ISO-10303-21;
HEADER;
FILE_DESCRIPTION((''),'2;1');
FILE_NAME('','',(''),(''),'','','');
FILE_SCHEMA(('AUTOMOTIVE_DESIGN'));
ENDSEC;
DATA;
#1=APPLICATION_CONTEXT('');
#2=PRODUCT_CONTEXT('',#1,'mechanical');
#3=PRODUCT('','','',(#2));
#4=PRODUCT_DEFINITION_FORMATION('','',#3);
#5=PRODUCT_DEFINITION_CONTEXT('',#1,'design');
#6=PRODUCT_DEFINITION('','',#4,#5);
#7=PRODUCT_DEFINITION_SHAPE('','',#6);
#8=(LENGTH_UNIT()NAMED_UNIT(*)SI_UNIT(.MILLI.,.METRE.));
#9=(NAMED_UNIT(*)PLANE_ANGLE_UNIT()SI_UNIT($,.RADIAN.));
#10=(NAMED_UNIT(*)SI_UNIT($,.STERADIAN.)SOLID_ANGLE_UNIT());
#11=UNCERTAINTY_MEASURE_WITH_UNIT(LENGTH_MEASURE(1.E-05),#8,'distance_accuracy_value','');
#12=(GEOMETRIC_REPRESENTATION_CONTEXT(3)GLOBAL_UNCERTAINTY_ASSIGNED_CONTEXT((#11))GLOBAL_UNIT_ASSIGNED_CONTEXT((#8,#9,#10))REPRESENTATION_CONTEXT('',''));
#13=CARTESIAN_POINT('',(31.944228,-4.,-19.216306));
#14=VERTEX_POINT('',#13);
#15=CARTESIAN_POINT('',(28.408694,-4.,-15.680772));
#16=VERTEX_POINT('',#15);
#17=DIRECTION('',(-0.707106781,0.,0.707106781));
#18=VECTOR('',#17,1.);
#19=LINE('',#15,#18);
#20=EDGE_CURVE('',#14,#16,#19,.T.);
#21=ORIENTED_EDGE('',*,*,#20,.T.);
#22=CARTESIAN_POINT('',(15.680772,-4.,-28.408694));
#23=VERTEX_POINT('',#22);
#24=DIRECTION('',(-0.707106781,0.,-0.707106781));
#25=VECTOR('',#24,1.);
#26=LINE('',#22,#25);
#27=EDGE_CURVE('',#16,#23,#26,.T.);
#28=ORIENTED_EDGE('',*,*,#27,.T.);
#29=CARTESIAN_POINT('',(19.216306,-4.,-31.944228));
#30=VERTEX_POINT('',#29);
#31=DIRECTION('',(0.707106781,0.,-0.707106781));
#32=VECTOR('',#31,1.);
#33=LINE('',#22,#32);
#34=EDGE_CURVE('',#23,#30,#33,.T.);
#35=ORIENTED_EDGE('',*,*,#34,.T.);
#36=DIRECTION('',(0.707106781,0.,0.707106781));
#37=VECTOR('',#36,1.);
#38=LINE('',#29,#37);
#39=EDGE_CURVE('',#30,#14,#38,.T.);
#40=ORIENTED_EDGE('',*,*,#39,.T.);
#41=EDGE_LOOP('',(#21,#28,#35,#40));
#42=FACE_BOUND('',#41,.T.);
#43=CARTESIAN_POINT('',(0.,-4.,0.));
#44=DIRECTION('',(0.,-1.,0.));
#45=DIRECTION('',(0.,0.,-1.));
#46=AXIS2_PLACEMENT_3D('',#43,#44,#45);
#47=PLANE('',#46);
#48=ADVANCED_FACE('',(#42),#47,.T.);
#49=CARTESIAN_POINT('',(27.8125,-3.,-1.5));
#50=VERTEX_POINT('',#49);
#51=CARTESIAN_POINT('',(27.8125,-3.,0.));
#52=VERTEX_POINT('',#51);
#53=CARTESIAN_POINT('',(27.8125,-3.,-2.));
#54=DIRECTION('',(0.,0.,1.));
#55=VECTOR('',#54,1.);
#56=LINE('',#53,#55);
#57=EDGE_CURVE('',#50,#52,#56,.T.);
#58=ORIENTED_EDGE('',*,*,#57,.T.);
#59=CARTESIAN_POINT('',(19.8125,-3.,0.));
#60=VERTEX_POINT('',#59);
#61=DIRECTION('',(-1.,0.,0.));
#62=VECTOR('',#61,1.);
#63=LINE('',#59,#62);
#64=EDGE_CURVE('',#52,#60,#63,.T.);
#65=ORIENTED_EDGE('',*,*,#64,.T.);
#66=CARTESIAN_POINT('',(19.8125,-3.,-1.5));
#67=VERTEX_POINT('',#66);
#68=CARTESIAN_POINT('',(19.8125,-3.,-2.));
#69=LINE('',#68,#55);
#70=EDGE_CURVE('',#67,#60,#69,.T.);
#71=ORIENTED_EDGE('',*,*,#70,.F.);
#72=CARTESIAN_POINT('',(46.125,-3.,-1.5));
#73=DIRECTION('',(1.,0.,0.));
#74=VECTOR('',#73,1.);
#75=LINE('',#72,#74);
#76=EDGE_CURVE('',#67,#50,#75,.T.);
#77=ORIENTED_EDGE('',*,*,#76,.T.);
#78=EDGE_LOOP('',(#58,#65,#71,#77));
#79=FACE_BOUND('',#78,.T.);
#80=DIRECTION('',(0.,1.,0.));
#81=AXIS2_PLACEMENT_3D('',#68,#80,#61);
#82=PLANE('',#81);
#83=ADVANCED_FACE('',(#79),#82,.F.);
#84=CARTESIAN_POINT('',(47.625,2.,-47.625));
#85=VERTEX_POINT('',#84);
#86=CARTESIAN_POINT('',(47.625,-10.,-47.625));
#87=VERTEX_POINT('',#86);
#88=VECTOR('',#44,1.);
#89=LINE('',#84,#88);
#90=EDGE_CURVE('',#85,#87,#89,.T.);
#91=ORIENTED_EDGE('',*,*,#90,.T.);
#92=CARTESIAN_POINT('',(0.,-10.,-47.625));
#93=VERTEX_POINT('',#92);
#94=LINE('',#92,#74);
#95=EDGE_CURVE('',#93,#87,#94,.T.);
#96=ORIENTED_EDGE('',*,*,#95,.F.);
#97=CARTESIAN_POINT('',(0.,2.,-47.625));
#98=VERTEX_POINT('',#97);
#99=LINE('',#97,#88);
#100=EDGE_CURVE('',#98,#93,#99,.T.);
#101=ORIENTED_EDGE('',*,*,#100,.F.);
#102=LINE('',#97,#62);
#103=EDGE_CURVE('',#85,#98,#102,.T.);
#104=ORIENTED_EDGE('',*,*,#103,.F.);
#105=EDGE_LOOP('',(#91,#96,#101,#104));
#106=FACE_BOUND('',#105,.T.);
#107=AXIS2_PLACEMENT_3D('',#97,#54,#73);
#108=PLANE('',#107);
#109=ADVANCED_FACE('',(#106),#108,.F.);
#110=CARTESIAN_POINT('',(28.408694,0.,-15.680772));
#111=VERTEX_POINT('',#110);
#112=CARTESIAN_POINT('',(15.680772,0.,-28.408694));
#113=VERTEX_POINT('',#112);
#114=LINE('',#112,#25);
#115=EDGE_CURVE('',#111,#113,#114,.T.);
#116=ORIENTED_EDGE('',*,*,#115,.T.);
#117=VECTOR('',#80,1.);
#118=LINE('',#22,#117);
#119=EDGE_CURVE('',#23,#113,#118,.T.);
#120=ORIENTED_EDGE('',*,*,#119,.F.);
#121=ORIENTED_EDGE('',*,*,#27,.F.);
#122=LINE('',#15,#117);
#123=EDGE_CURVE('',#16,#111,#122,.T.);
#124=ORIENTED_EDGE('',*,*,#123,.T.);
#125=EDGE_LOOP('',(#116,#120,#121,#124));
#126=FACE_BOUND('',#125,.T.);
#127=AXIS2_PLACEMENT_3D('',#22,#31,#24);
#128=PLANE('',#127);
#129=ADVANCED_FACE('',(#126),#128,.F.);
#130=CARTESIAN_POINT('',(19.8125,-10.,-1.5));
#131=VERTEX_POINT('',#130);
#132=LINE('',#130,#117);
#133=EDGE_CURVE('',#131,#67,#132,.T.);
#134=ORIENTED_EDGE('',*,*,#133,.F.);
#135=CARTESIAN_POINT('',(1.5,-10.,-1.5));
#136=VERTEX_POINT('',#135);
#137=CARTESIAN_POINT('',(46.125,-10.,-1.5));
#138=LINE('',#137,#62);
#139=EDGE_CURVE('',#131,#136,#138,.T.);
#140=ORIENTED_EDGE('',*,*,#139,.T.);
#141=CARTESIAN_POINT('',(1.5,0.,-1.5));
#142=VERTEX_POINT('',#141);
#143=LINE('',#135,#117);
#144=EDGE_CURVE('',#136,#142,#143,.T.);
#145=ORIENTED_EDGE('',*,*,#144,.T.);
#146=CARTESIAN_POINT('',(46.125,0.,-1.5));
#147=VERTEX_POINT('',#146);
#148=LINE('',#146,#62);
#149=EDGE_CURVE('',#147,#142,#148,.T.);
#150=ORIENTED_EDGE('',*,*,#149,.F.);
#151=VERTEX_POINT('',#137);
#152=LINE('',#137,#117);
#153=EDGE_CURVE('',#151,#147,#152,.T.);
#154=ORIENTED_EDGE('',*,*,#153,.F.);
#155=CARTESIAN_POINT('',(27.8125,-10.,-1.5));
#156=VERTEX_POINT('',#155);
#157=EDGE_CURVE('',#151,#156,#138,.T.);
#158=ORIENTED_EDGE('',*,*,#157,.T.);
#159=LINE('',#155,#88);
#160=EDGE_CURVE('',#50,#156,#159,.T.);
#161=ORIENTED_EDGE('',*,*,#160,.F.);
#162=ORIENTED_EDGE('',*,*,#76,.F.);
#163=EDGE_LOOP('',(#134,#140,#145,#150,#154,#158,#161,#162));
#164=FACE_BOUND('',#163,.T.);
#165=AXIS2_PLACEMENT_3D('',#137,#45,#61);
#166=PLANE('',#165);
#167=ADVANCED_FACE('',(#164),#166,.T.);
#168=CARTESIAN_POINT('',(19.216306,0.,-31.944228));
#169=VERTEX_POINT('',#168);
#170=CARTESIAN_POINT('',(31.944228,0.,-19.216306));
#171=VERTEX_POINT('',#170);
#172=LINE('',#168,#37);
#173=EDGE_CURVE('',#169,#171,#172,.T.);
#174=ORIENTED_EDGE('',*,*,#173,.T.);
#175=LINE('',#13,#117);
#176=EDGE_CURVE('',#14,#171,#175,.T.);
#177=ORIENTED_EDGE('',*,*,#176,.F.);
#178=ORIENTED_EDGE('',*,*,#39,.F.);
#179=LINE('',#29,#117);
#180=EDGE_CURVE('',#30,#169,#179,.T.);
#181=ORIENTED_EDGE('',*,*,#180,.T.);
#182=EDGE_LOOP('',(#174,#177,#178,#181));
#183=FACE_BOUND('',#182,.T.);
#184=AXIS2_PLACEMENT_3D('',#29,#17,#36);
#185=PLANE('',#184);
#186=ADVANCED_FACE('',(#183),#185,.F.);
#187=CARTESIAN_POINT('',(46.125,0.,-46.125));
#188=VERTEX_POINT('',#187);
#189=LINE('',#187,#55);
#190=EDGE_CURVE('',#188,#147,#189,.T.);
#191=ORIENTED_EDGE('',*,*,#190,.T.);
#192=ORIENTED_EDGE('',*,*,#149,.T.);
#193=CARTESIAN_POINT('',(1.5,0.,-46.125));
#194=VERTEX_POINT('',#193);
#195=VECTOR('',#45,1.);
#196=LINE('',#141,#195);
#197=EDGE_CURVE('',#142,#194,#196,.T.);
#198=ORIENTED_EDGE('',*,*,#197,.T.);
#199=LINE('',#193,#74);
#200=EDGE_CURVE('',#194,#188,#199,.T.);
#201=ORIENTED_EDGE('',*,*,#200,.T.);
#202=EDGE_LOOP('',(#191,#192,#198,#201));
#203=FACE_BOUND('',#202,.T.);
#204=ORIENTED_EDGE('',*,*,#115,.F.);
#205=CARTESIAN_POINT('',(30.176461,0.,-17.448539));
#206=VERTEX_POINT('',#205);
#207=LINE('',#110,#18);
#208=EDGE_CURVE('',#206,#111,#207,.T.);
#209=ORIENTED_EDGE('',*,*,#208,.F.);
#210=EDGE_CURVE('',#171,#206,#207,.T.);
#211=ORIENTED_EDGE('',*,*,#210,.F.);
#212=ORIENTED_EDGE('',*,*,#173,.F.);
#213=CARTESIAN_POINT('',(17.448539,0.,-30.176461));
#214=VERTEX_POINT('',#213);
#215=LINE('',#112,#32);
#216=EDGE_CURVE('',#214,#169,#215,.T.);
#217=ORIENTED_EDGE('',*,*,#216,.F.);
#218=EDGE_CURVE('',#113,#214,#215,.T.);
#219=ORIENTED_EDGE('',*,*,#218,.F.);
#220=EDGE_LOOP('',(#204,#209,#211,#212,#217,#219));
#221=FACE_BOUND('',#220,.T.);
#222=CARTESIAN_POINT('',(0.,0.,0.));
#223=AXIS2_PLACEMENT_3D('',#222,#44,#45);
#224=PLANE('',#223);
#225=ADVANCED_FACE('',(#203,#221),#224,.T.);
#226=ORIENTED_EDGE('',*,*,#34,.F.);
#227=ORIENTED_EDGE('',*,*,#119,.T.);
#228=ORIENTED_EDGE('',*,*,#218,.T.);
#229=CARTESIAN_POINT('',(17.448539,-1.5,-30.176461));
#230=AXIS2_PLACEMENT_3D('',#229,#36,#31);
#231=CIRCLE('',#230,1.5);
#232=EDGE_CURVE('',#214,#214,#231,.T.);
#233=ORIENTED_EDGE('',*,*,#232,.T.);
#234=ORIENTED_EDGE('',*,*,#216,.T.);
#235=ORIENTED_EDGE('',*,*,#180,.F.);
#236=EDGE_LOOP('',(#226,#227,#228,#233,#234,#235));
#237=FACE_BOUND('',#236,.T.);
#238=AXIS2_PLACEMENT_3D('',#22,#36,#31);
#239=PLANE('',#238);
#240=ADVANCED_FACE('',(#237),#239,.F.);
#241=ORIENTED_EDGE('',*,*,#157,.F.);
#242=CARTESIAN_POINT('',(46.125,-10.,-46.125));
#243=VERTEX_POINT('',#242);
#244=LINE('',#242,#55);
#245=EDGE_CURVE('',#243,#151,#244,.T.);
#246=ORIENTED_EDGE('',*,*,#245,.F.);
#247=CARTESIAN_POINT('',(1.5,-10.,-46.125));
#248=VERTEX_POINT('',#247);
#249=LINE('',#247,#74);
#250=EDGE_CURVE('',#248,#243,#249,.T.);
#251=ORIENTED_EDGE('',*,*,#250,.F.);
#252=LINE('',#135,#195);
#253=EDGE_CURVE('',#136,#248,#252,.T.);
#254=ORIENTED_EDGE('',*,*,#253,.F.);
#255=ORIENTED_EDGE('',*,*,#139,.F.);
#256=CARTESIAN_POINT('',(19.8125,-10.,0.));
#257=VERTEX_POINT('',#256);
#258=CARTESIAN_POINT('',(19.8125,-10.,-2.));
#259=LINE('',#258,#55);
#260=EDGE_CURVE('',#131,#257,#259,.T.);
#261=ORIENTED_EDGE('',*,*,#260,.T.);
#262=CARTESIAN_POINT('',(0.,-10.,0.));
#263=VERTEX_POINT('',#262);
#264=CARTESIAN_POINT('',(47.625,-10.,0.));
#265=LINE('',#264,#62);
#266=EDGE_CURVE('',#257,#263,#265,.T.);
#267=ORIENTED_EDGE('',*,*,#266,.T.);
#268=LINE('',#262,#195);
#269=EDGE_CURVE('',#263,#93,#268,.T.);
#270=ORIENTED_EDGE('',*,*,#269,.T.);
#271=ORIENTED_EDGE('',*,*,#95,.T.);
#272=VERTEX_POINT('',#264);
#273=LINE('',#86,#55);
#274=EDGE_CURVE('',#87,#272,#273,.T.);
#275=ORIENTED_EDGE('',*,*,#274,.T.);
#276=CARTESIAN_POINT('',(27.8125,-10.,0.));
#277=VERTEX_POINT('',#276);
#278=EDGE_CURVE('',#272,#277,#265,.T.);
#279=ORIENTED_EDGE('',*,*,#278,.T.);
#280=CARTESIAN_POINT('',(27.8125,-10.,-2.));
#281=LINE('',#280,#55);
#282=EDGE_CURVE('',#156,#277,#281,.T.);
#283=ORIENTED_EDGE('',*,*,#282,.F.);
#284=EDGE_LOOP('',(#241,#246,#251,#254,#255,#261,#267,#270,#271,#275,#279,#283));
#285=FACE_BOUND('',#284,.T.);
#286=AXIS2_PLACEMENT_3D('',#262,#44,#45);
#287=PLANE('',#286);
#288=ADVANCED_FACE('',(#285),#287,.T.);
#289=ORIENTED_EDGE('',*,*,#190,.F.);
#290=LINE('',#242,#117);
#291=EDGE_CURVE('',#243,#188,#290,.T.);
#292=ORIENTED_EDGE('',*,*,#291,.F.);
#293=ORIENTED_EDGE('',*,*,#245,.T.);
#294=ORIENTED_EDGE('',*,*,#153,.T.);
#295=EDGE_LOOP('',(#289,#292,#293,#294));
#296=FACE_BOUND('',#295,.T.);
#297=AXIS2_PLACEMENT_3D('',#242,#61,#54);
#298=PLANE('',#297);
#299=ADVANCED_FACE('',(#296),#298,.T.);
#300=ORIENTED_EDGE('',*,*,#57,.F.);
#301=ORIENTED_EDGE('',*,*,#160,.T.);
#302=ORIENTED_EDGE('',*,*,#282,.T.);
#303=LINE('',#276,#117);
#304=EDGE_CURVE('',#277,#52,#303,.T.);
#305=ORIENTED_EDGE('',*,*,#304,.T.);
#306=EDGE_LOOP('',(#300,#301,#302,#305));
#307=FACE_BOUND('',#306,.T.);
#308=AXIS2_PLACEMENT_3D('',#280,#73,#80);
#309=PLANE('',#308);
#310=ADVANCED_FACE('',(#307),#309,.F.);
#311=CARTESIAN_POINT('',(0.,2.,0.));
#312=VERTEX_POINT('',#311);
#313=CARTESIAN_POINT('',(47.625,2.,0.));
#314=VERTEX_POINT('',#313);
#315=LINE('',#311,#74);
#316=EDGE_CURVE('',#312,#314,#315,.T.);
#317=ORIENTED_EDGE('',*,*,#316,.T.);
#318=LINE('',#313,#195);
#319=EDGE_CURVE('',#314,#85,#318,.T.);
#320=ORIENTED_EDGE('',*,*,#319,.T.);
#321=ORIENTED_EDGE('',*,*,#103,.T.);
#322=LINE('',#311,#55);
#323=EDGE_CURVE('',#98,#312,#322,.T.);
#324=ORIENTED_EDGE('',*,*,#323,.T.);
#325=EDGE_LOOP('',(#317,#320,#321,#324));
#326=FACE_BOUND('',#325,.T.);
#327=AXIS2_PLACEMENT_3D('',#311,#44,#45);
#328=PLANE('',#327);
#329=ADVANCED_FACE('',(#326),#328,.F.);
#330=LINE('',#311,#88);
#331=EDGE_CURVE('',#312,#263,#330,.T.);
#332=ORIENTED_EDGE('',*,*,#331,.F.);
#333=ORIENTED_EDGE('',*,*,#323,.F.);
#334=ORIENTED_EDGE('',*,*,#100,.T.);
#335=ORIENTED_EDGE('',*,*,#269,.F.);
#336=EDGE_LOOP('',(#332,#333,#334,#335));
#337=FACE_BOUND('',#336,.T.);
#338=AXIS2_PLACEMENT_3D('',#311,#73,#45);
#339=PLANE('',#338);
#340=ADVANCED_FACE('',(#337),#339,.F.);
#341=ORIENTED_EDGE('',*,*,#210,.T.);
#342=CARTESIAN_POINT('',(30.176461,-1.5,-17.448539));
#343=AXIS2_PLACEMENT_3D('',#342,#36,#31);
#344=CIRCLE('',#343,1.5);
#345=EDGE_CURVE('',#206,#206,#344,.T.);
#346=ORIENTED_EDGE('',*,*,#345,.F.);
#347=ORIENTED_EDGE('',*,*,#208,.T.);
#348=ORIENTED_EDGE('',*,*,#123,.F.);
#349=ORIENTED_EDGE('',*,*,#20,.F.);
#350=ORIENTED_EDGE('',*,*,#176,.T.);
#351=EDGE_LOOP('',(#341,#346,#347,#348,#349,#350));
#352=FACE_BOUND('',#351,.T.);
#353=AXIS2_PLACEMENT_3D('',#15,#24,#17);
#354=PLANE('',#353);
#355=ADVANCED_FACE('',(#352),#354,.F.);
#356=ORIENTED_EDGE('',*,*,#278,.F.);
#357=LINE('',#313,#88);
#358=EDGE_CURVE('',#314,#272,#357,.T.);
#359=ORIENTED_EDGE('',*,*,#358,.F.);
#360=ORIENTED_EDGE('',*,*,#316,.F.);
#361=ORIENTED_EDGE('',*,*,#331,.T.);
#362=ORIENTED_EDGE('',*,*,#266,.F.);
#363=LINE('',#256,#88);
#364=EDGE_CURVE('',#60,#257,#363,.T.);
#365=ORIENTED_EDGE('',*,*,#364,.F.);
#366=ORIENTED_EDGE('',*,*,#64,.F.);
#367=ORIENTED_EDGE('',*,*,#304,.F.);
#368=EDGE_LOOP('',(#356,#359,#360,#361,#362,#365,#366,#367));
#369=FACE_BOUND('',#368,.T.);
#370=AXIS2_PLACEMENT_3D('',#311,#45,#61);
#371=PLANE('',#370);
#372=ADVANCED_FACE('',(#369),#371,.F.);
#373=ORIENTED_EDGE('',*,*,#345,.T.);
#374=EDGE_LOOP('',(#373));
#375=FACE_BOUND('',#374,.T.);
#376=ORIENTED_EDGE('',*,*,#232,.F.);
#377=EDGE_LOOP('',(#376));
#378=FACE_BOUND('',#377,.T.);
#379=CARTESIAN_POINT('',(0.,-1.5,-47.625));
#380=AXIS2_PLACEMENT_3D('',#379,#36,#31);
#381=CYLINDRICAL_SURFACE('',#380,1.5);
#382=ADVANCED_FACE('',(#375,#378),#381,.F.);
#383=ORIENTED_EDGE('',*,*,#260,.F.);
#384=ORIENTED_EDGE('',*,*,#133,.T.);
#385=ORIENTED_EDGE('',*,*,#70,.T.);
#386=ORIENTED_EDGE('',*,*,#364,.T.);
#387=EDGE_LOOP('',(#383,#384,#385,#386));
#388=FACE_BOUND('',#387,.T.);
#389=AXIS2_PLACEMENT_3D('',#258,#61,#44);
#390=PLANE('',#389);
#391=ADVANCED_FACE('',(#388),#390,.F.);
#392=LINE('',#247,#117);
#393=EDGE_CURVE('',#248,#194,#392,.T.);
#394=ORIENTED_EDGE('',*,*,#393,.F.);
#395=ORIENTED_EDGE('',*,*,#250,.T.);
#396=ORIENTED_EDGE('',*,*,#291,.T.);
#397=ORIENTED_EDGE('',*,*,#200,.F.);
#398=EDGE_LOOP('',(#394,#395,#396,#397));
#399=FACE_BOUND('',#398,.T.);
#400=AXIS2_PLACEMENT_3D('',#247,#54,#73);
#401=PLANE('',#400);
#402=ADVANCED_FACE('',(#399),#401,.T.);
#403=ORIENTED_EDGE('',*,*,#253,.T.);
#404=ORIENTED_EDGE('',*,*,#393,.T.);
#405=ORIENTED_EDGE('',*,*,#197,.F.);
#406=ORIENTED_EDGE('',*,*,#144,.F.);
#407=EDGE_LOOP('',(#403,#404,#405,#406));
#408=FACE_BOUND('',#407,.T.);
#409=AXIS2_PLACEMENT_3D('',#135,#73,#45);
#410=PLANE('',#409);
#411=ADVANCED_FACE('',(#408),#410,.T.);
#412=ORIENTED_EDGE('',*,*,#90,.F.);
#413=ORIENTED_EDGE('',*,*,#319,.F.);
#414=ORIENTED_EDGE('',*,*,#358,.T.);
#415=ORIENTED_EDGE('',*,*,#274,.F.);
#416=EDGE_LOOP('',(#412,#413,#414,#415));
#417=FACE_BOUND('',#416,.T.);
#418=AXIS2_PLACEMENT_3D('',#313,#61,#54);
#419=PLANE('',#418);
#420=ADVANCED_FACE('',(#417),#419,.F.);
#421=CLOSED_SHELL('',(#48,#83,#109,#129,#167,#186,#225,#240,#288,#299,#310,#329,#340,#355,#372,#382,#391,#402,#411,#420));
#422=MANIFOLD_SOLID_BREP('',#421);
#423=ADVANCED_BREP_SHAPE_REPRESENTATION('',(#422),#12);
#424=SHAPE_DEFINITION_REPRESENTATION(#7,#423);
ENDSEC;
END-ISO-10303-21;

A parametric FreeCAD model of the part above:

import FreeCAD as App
import Part
import Sketcher

V = App.Vector
Q = App.Units.Quantity


def add_polygon(sketch, points):
    """Adds a closed chain of lines whose ends are joined by coincident constraints."""
    first, n = sketch.GeometryCount, len(points)
    for a, b in zip(points, points[1:] + points[:1]):
        sketch.addGeometry(Part.LineSegment(App.Vector(*a, 0), App.Vector(*b, 0)), False)
    for i in range(n):
        sketch.addConstraint(Sketcher.Constraint("Coincident", first + i, 2, first + (i + 1) % n, 1))

doc = App.newDocument("Part")
body = doc.addObject("PartDesign::Body", "Body")

sketch1 = body.newObject("Sketcher::SketchObject", "Sketch")
sketch1.AttachmentSupport = (doc.getObject("XZ_Plane"), [""])
sketch1.MapMode = "FlatFace"
add_polygon(sketch1, [(0, -48), (0, 0), (48, 0), (48, -48)])
sketch1.addConstraint([
    Sketcher.Constraint("Vertical", 0),
    Sketcher.Constraint("Horizontal", 1),
    Sketcher.Constraint("Vertical", 2),
    Sketcher.Constraint("Horizontal", 3),
    Sketcher.Constraint("Coincident", 0, 2, -1, 1),
    Sketcher.Constraint("Equal", 3, 0),
    Sketcher.Constraint("DistanceX", 1, 1, 1, 2, 47.625),
])
pad1 = body.newObject("PartDesign::Pad", "Pad")
pad1.Profile = sketch1
pad1.Length = 2
pad1.Reversed = True

sketch2 = body.newObject("Sketcher::SketchObject", "Sketch001")
sketch2.AttachmentSupport = (doc.getObject("XZ_Plane"), [""])
sketch2.MapMode = "FlatFace"
add_polygon(sketch2, [(28, -16), (16, -28), (19, -32), (32, -19)])
sketch2.addConstraint([
    Sketcher.Constraint("Perpendicular", 0, 1),
    Sketcher.Constraint("Perpendicular", 1, 2),
    Sketcher.Constraint("Perpendicular", 2, 3),
    Sketcher.Constraint("Angle", 0, Q("-135 deg")),
    Sketcher.Constraint("Distance", 0, 18.0),
    Sketcher.Constraint("Distance", 1, 5.0),
    Sketcher.Constraint("DistanceX", -1, 1, 0, 2, 15.680772),
    Sketcher.Constraint("DistanceY", 0, 2, -1, 1, 28.408694),
])
pad2 = body.newObject("PartDesign::Pad", "Pad001")
pad2.Profile = sketch2
pad2.Length = 4

sketch3 = body.newObject("Sketcher::SketchObject", "Sketch002")
sketch3.Placement = App.Placement(V(6.363961, 0, 6.363961), App.Rotation(V(0.707106781, 0, -0.707106781), V(0, 0.999999999, 0), V(0.707106781, 0, 0.707106781), "ZXY"))
sketch3.addGeometry(Part.Circle(V(33.7, -1.5, 0), V(0, 0, 1), 1.5), False)
sketch3.addConstraint([
    Sketcher.Constraint("Diameter", 0, 3.0),
    Sketcher.Constraint("DistanceY", 0, 3, -1, 1, 1.5),
    Sketcher.Constraint("DistanceX", -1, 1, 0, 3, 33.67596),
])
pocket1 = body.newObject("PartDesign::Pocket", "Pocket")
pocket1.Profile = sketch3
pocket1.Type = "ThroughAll"

sketch4 = body.newObject("Sketcher::SketchObject", "Sketch003")
sketch4.AttachmentSupport = (doc.getObject("XZ_Plane"), [""])
sketch4.MapMode = "FlatFace"
add_polygon(sketch4, [(0, 0), (0, -48), (48, -48), (48, 0)])
add_polygon(sketch4, [(46, -46), (2, -46), (2, -2), (46, -2)])
sketch4.addConstraint([
    Sketcher.Constraint("Vertical", 0),
    Sketcher.Constraint("Horizontal", 1),
    Sketcher.Constraint("Vertical", 2),
    Sketcher.Constraint("Horizontal", 3),
    Sketcher.Constraint("Horizontal", 4),
    Sketcher.Constraint("Vertical", 5),
    Sketcher.Constraint("Horizontal", 6),
    Sketcher.Constraint("Vertical", 7),
    Sketcher.Constraint("Coincident", 3, 2, -1, 1),
    Sketcher.Constraint("Equal", 3, 0),
    Sketcher.Constraint("Equal", 6, 5),
    Sketcher.Constraint("DistanceX", -1, 1, 4, 2, 1.5),
    Sketcher.Constraint("DistanceY", 5, 2, -1, 1, 1.5),
    Sketcher.Constraint("DistanceY", 0, 2, 4, 2, 1.5),
    Sketcher.Constraint("DistanceX", 1, 1, 1, 2, 47.625),
])
pad3 = body.newObject("PartDesign::Pad", "Pad002")
pad3.Profile = sketch4
pad3.Length = 10

sketch5 = body.newObject("Sketcher::SketchObject", "Sketch004")
sketch5.AttachmentSupport = (doc.getObject("XY_Plane"), [""])
sketch5.MapMode = "FlatFace"
add_polygon(sketch5, [(20, -3), (20, -10), (28, -10), (28, -3)])
sketch5.addConstraint([
    Sketcher.Constraint("Vertical", 0),
    Sketcher.Constraint("Horizontal", 1),
    Sketcher.Constraint("Vertical", 2),
    Sketcher.Constraint("Horizontal", 3),
    Sketcher.Constraint("DistanceX", 1, 1, 1, 2, 8.0),
    Sketcher.Constraint("DistanceY", 0, 2, 0, 1, 7.0),
    Sketcher.Constraint("DistanceY", 0, 2, -1, 1, 10.0),
    Sketcher.Constraint("DistanceX", -1, 1, 0, 2, 19.8125),
])
pocket2 = body.newObject("PartDesign::Pocket", "Pocket001")
pocket2.Profile = sketch5
pocket2.Length = 2

doc.recompute()
